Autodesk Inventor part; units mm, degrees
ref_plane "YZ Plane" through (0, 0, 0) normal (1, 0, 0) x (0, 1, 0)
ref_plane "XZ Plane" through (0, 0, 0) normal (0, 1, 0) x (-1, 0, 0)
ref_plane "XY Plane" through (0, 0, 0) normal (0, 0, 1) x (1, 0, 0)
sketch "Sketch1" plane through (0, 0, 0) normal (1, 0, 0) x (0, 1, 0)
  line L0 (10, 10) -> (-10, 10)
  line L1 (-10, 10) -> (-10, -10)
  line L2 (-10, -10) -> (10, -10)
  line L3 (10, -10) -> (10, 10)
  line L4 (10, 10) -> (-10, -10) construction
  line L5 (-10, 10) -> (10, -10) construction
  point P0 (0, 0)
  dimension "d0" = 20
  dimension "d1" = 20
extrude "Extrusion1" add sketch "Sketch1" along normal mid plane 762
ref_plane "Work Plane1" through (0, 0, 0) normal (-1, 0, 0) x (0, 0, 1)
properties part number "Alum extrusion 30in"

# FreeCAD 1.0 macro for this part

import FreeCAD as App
import Part
import Sketcher
Q = App.Units.Quantity

doc = App.newDocument("Part")
body = doc.addObject("PartDesign::Body", "Body")

sketch1 = body.newObject("Sketcher::SketchObject", "Sketch")
sketch1.AttachmentSupport = (doc.getObject("YZ_Plane"), [""])
sketch1.MapMode = "FlatFace"
sketch1.addGeometry(Part.LineSegment(App.Vector(10, -10, 0), App.Vector(10, 10, 0)), False)
sketch1.addGeometry(Part.LineSegment(App.Vector(10, 10, 0), App.Vector(-10, 10, 0)), False)
sketch1.addGeometry(Part.LineSegment(App.Vector(-10, 10, 0), App.Vector(-10, -10, 0)), False)
sketch1.addGeometry(Part.LineSegment(App.Vector(-10, -10, 0), App.Vector(10, -10, 0)), False)
sketch1.addConstraint(Sketcher.Constraint("Coincident", 0, 2, 1, 1))
sketch1.addConstraint(Sketcher.Constraint("Coincident", 1, 2, 2, 1))
sketch1.addConstraint(Sketcher.Constraint("Coincident", 2, 2, 3, 1))
sketch1.addConstraint(Sketcher.Constraint("Coincident", 3, 2, 0, 1))
sketch1.addConstraint(Sketcher.Constraint("Vertical", 0))
sketch1.addConstraint(Sketcher.Constraint("Horizontal", 1))
sketch1.addConstraint(Sketcher.Constraint("Vertical", 2))
sketch1.addConstraint(Sketcher.Constraint("Horizontal", 3))
sketch1.addConstraint(Sketcher.Constraint("Symmetric", 0, 2, 2, 2, -1, 1))
sketch1.addConstraint(Sketcher.Constraint("Equal", 3, 0))
sketch1.addConstraint(Sketcher.Constraint("DistanceX", 1, 2, 1, 1, Q("0.7874 in")))
pad1 = body.newObject("PartDesign::Pad", "Pad")
pad1.Profile = sketch1
pad1.Length = Q("30 in")
pad1.Midplane = True

doc.recompute()
